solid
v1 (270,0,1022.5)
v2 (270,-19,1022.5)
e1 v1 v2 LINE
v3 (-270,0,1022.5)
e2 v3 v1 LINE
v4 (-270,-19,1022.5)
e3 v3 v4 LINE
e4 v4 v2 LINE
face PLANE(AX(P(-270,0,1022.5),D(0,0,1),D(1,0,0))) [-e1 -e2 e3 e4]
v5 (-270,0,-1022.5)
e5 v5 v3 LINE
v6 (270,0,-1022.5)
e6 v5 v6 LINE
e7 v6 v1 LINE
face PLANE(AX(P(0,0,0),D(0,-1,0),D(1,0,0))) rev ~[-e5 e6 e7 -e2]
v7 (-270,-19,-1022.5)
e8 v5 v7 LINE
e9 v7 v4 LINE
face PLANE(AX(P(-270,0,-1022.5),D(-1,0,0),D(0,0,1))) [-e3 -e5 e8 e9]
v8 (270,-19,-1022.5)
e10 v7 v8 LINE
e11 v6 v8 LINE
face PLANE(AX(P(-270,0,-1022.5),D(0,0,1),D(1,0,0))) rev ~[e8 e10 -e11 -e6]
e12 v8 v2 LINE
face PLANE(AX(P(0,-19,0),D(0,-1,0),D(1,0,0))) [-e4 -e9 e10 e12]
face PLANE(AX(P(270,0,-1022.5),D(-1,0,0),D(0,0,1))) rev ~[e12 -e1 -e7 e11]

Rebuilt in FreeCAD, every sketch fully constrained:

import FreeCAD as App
import Part
import Sketcher

doc = App.newDocument("Part")
body = doc.addObject("PartDesign::Body", "Body")

# Sketch on XZ plane
sketch1 = doc.addObject("Sketcher::SketchObject", "Sketch")
body.addObject(sketch1)
sketch1.AttachmentSupport = (doc.XZ_Plane, [""])
sketch1.MapMode = "FlatFace"
sketch1.addGeometry([
    Part.LineSegment(App.Vector(-270, 1022, 0), App.Vector(-270, -1022, 0)),
    Part.LineSegment(App.Vector(-270, -1022, 0), App.Vector(270, -1022, 0)),
    Part.LineSegment(App.Vector(270, -1022, 0), App.Vector(270, 1022, 0)),
    Part.LineSegment(App.Vector(270, 1022, 0), App.Vector(-270, 1022, 0)),
], False)
sketch1.addConstraint([
    Sketcher.Constraint("Coincident", 0, 2, 1, 1),
    Sketcher.Constraint("Coincident", 1, 2, 2, 1),
    Sketcher.Constraint("Coincident", 2, 2, 3, 1),
    Sketcher.Constraint("Coincident", 3, 2, 0, 1),
    Sketcher.Constraint("Vertical", 0),
    Sketcher.Constraint("Horizontal", 1),
    Sketcher.Constraint("Vertical", 2),
    Sketcher.Constraint("Horizontal", 3),
    Sketcher.Constraint("Symmetric", 0, 2, 2, 2, -1, 1),
    Sketcher.Constraint("DistanceX", 1, 1, 1, 2, 540.0),
    Sketcher.Constraint("DistanceY", 0, 2, 0, 1, 2045.0),
])
pad1 = doc.addObject("PartDesign::Pad", "Pad")
body.addObject(pad1)
pad1.Profile = sketch1
pad1.Length = 19

doc.recompute()
